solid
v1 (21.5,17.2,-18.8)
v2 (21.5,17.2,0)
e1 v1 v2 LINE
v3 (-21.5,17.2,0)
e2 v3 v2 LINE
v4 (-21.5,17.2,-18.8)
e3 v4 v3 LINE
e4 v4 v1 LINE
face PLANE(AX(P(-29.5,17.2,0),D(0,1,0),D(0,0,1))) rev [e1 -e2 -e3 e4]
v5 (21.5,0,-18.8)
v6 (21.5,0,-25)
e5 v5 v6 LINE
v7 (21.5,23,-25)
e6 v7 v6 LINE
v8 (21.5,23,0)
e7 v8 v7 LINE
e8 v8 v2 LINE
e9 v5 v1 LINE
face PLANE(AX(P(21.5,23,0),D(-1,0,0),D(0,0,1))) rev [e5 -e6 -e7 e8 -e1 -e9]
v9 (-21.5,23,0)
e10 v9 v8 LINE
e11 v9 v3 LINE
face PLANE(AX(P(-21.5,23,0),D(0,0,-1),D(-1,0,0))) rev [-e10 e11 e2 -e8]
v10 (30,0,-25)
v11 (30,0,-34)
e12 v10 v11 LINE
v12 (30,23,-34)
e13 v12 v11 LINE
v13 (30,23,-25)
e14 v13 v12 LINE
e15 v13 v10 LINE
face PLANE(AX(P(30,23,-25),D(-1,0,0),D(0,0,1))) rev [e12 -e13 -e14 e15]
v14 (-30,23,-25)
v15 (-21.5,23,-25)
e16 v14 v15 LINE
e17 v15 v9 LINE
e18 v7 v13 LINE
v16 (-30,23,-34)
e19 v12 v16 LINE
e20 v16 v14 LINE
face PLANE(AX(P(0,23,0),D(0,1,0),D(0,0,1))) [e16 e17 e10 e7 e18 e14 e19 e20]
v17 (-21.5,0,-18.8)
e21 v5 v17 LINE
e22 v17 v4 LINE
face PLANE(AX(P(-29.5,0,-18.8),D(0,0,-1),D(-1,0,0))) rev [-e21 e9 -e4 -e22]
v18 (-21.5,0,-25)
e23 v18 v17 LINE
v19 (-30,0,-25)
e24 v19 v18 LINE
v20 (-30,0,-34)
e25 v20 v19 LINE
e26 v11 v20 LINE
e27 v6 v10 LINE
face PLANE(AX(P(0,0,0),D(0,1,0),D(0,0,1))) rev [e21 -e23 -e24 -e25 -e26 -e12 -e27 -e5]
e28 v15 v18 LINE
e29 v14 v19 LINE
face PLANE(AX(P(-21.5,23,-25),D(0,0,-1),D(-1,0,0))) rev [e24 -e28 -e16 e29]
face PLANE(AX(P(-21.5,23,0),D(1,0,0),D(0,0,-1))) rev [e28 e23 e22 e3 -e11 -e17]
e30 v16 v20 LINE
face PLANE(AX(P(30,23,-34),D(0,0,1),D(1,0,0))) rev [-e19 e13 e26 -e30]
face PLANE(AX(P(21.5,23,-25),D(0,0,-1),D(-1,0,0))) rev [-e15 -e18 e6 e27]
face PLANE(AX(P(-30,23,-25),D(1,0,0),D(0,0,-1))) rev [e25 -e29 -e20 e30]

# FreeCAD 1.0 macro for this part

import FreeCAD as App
import Part
import Sketcher
Q = App.Units.Quantity


def add_polygon(sketch, points):
    """Adds a closed chain of lines whose ends are joined by coincident constraints."""
    first, n = sketch.GeometryCount, len(points)
    for a, b in zip(points, points[1:] + points[:1]):
        sketch.addGeometry(Part.LineSegment(App.Vector(*a, 0), App.Vector(*b, 0)), False)
    for i in range(n):
        sketch.addConstraint(Sketcher.Constraint("Coincident", first + i, 2, first + (i + 1) % n, 1))

doc = App.newDocument("Part")
params = doc.addObject("Spreadsheet::Sheet", "Params")
for row, (alias, value) in enumerate([
    ("sketch1_width", "43 mm"),
    ("sketch1_width2", "60 mm"),
    ("sketch1_height", "25 mm"),
    ("sketch1_height2", "9 mm"),
    ("pad1_length", "23 mm"),
    ("sketch2_width", "17.2 mm"),
    ("sketch2_height", "18.8 mm"),
    ("pocket1_length", "51 mm"),
], start=1):
    params.set(f"A{row}", alias)
    params.set(f"B{row}", "=" + value)
    params.setAlias(f"B{row}", alias)

body = doc.addObject("PartDesign::Body", "Body")

sketch1 = doc.addObject("Sketcher::SketchObject", "Sketch")
body.addObject(sketch1)
sketch1.AttachmentSupport = (doc.XZ_Plane, [""])
sketch1.MapMode = "FlatFace"
add_polygon(sketch1, [(-22, 0), (22, 0), (22, -25), (30, -25), (30, -34), (-30, -34), (-30, -25), (-22, -25)])
sketch1.addConstraint([
    Sketcher.Constraint("Horizontal", 0),
    Sketcher.Constraint("Vertical", 1),
    Sketcher.Constraint("Horizontal", 2),
    Sketcher.Constraint("Vertical", 3),
    Sketcher.Constraint("Horizontal", 4),
    Sketcher.Constraint("Vertical", 5),
    Sketcher.Constraint("Horizontal", 6),
    Sketcher.Constraint("Vertical", 7),
    Sketcher.Constraint("Symmetric", 0, 2, 7, 2, -1, 1),
    Sketcher.Constraint("Symmetric", 2, 2, 5, 2, -2),
    Sketcher.Constraint("DistanceX", 0, 1, 0, 2, Q("43 mm")),
    Sketcher.Constraint("DistanceX", 4, 2, 4, 1, Q("60 mm")),
    Sketcher.Constraint("DistanceY", 1, 2, 1, 1, Q("25 mm")),
    Sketcher.Constraint("DistanceY", 3, 2, 3, 1, Q("9 mm")),
])
sketch1.setExpression("Constraints[18]", "Params.sketch1_width")
sketch1.setExpression("Constraints[19]", "Params.sketch1_width2")
sketch1.setExpression("Constraints[20]", "Params.sketch1_height")
sketch1.setExpression("Constraints[21]", "Params.sketch1_height2")
pad1 = doc.addObject("PartDesign::Pad", "Pad")
body.addObject(pad1)
pad1.Profile = sketch1
pad1.setExpression("Length", "Params.pad1_length")
pad1.Reversed = True

sketch2 = doc.addObject("Sketcher::SketchObject", "Sketch001")
body.addObject(sketch2)
sketch2.AttachmentSupport = (doc.YZ_Plane, [""])
sketch2.MapMode = "FlatFace"
sketch2.AttachmentOffset = App.Placement(App.Vector(0, 0, 21.5), App.Rotation())
add_polygon(sketch2, [(17, 0), (0, 0), (0, -19), (17, -19)])
sketch2.addConstraint([
    Sketcher.Constraint("Horizontal", 0),
    Sketcher.Constraint("Vertical", 1),
    Sketcher.Constraint("Horizontal", 2),
    Sketcher.Constraint("Vertical", 3),
    Sketcher.Constraint("Coincident", 0, 2, -1, 1),
    Sketcher.Constraint("DistanceX", 0, 2, 0, 1, Q("17.2 mm")),
    Sketcher.Constraint("DistanceY", 1, 2, 1, 1, Q("18.8 mm")),
])
sketch2.setExpression("Constraints[9]", "Params.sketch2_width")
sketch2.setExpression("Constraints[10]", "Params.sketch2_height")
pocket1 = doc.addObject("PartDesign::Pocket", "Pocket")
body.addObject(pocket1)
pocket1.Profile = sketch2
pocket1.setExpression("Length", "Params.pocket1_length")

doc.recompute()
